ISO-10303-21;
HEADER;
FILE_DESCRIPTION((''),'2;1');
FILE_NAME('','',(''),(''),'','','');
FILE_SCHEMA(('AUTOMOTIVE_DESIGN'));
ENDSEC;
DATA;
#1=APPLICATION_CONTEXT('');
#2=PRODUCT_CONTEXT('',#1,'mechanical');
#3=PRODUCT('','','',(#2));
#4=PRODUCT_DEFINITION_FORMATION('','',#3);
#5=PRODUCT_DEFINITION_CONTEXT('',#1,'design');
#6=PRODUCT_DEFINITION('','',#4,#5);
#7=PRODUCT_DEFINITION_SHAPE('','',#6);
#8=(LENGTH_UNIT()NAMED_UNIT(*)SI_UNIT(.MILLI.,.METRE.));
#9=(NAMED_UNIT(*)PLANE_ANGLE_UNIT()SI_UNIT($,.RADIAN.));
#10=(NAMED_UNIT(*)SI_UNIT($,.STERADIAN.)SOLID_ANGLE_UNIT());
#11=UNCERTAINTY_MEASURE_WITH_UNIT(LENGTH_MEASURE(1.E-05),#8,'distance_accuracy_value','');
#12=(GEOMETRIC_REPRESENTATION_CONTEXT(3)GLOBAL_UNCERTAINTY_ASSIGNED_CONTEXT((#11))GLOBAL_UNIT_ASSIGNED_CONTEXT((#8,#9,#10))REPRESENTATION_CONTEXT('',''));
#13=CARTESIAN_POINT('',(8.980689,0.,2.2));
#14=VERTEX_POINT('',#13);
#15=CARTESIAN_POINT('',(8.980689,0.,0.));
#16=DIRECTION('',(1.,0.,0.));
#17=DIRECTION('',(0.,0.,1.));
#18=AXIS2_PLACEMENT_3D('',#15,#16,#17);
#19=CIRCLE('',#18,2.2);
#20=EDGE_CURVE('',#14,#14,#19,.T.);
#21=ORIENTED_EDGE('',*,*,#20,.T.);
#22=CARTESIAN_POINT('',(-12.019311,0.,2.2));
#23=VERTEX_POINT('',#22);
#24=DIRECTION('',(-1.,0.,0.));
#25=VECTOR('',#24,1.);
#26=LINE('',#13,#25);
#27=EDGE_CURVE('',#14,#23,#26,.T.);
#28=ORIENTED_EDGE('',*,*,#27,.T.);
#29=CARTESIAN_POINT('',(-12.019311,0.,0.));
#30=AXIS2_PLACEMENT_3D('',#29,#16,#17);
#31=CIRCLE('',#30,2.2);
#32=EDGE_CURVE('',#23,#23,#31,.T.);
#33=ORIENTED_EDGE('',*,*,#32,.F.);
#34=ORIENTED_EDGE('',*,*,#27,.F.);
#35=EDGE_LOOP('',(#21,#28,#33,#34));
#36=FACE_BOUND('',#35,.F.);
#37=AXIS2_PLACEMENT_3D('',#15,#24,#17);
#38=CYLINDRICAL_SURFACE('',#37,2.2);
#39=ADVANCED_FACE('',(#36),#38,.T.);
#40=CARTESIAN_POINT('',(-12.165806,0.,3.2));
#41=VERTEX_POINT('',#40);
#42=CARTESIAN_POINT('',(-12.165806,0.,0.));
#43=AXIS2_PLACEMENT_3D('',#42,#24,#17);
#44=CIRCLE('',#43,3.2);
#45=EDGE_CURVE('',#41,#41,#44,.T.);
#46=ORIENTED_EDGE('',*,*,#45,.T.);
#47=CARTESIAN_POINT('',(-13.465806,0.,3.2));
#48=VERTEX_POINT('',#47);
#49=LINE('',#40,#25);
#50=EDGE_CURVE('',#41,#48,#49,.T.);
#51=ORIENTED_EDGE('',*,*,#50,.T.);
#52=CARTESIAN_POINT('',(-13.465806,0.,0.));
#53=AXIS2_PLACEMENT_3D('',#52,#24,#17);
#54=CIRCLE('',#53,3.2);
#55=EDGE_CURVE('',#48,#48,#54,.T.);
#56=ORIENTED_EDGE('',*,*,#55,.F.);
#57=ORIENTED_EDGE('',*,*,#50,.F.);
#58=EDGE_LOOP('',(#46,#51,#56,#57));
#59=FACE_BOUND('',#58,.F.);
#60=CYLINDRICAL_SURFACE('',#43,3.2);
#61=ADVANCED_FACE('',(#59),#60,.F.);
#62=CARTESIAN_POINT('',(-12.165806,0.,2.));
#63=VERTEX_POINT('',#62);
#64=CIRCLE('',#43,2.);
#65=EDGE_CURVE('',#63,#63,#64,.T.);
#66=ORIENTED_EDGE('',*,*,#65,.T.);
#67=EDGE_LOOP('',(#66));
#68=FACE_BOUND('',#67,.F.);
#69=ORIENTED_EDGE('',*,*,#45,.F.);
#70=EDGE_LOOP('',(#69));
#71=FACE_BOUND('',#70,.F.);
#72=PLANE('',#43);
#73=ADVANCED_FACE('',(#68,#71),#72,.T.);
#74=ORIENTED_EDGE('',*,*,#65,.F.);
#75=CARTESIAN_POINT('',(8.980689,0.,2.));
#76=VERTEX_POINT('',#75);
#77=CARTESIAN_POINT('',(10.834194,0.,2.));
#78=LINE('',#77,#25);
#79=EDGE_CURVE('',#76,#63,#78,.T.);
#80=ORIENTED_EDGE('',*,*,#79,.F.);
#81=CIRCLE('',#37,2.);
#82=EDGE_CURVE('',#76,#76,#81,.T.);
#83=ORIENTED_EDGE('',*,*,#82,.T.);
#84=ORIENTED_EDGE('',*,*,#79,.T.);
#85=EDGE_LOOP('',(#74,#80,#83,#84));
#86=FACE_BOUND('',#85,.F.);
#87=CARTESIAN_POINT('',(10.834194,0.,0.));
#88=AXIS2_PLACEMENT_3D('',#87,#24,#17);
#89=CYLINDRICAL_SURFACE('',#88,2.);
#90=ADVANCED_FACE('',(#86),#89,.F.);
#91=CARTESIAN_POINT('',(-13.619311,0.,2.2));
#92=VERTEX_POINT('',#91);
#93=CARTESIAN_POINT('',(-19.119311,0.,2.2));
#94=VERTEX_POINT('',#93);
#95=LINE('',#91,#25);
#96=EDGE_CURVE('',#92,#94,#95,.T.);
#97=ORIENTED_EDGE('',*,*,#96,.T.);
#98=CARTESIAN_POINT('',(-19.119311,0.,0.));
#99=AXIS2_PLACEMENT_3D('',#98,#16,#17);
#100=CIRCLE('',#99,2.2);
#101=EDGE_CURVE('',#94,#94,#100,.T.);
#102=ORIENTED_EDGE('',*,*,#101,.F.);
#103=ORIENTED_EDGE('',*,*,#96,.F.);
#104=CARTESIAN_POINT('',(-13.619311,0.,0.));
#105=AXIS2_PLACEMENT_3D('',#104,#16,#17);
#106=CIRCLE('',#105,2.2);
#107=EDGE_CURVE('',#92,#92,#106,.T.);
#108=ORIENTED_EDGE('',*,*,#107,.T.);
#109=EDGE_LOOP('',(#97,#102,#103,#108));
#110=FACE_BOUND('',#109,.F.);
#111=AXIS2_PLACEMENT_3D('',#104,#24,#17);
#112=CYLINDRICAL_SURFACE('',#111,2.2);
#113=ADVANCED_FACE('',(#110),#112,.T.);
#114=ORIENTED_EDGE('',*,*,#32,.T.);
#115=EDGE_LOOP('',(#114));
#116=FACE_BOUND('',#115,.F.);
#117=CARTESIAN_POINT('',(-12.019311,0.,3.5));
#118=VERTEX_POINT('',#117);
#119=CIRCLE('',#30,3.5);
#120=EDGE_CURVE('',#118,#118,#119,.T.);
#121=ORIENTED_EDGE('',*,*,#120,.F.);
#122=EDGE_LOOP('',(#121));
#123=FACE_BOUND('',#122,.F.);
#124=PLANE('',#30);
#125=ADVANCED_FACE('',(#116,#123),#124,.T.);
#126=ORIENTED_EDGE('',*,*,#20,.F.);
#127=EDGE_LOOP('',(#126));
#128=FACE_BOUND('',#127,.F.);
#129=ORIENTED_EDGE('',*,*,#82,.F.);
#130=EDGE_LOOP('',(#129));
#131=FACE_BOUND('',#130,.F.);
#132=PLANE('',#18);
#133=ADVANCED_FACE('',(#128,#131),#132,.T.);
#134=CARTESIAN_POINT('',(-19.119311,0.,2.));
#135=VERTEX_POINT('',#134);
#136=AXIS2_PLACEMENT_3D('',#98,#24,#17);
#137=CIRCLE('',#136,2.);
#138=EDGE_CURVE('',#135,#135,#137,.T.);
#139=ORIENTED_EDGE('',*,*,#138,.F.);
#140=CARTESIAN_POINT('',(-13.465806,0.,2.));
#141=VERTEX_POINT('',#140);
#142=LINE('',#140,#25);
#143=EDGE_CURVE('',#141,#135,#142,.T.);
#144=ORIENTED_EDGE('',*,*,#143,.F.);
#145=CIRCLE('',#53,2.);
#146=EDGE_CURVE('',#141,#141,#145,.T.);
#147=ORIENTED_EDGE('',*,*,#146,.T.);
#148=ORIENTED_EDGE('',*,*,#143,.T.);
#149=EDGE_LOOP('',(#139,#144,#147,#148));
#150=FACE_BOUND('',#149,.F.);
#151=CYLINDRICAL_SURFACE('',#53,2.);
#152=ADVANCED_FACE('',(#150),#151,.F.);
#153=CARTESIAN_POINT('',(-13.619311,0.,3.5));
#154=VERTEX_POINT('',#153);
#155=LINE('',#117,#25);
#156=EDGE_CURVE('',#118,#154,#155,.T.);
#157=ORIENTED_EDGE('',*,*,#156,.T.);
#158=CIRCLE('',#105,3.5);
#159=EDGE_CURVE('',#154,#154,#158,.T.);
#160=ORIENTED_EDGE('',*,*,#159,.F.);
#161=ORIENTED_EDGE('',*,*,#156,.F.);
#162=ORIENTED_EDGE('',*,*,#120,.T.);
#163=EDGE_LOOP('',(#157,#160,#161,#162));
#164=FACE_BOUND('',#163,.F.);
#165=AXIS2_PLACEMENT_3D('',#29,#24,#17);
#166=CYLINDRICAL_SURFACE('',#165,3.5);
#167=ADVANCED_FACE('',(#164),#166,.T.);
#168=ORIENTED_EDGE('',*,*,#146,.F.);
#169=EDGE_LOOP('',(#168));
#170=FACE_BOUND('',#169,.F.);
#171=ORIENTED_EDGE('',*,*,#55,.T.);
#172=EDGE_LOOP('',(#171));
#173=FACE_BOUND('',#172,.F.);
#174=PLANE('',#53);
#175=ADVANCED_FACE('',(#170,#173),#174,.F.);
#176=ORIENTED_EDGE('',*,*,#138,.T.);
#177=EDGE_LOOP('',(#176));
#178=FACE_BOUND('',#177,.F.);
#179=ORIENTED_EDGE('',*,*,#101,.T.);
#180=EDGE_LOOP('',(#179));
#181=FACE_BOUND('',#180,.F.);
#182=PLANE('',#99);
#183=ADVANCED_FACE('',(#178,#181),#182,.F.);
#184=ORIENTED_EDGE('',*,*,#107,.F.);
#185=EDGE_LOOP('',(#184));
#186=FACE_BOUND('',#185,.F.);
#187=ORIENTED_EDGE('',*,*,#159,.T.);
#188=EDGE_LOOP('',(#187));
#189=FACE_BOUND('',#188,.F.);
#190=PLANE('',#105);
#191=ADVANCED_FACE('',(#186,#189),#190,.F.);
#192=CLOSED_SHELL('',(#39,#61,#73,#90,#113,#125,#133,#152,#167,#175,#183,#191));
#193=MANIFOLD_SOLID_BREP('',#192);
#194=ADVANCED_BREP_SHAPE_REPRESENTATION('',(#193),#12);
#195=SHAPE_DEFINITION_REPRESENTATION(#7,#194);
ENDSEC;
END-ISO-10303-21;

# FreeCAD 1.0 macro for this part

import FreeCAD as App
import Part
import Sketcher
Q = App.Units.Quantity

doc = App.newDocument("Part")
body = doc.addObject("PartDesign::Body", "Body")

sketch1 = doc.addObject("Sketcher::SketchObject", "Sketch")
body.addObject(sketch1)
sketch1.AttachmentSupport = (doc.XZ_Plane, [""])
sketch1.MapMode = "FlatFace"
sketch1.addGeometry([
    Part.LineSegment(App.Vector(-13.6, 2.2, 0), App.Vector(-19.1, 2.2, 0)),
    Part.LineSegment(App.Vector(-19.1, 2.2, 0), App.Vector(-19.1, 0, 0)),
    Part.LineSegment(App.Vector(-19.1, 0, 0), App.Vector(9, 0, 0)),
    Part.LineSegment(App.Vector(9, 0, 0), App.Vector(9, 2.2, 0)),
    Part.LineSegment(App.Vector(9, 2.2, 0), App.Vector(-12, 2.2, 0)),
    Part.LineSegment(App.Vector(-12, 2.2, 0), App.Vector(-12, 3.5, 0)),
    Part.LineSegment(App.Vector(-12, 3.5, 0), App.Vector(-13.6, 3.5, 0)),
    Part.LineSegment(App.Vector(-13.6, 3.5, 0), App.Vector(-13.6, 2.2, 0)),
], False)
sketch1.addConstraint([
    Sketcher.Constraint("Coincident", 0, 2, 1, 1),
    Sketcher.Constraint("Coincident", 1, 2, 2, 1),
    Sketcher.Constraint("Coincident", 2, 2, 3, 1),
    Sketcher.Constraint("Coincident", 3, 2, 4, 1),
    Sketcher.Constraint("Coincident", 4, 2, 5, 1),
    Sketcher.Constraint("Coincident", 5, 2, 6, 1),
    Sketcher.Constraint("Coincident", 6, 2, 7, 1),
    Sketcher.Constraint("Coincident", 7, 2, 0, 1),
    Sketcher.Constraint("Horizontal", 0),
    Sketcher.Constraint("Vertical", 1),
    Sketcher.Constraint("Horizontal", 2),
    Sketcher.Constraint("Vertical", 3),
    Sketcher.Constraint("Horizontal", 4),
    Sketcher.Constraint("Vertical", 5),
    Sketcher.Constraint("Horizontal", 6),
    Sketcher.Constraint("Vertical", 7),
    Sketcher.Constraint("PointOnObject", 1, 2, -1),
    Sketcher.Constraint("Horizontal", 0, 2, 3, 2),
    Sketcher.Constraint("DistanceX", 4, 2, 4, 1, Q("21 mm")),
    Sketcher.Constraint("DistanceX", 0, 2, 0, 1, Q("5.5 mm")),
    Sketcher.Constraint("DistanceX", 2, 1, 2, 2, Q("28.1 mm")),
    Sketcher.Constraint("DistanceY", 1, 2, 1, 1, Q("2.2 mm")),
    Sketcher.Constraint("DistanceY", 5, 1, 5, 2, Q("1.3 mm")),
    Sketcher.Constraint("DistanceX", 0, 2, -1, 1, Q("19.119311 mm")),
])
revolution = doc.addObject("PartDesign::Revolution", "Revolution")
body.addObject(revolution)
revolution.Profile = sketch1
revolution.ReferenceAxis = (sketch1, ["H_Axis"])
revolution.Angle = 360

sketch2 = doc.addObject("Sketcher::SketchObject", "Sketch001")
body.addObject(sketch2)
sketch2.AttachmentSupport = (doc.XZ_Plane, [""])
sketch2.MapMode = "FlatFace"
sketch2.addGeometry([
    Part.LineSegment(App.Vector(-13.5, 2, 0), App.Vector(-19.5, 2, 0)),
    Part.LineSegment(App.Vector(-19.5, 2, 0), App.Vector(-19.5, 0, 0)),
    Part.LineSegment(App.Vector(-19.5, 0, 0), App.Vector(10.8, 0, 0)),
    Part.LineSegment(App.Vector(10.8, 0, 0), App.Vector(10.8, 2, 0)),
    Part.LineSegment(App.Vector(10.8, 2, 0), App.Vector(-12.2, 2, 0)),
    Part.LineSegment(App.Vector(-12.2, 2, 0), App.Vector(-12.2, 3.2, 0)),
    Part.LineSegment(App.Vector(-12.2, 3.2, 0), App.Vector(-13.5, 3.2, 0)),
    Part.LineSegment(App.Vector(-13.5, 3.2, 0), App.Vector(-13.5, 2, 0)),
], False)
sketch2.addConstraint([
    Sketcher.Constraint("Coincident", 0, 2, 1, 1),
    Sketcher.Constraint("Coincident", 1, 2, 2, 1),
    Sketcher.Constraint("Coincident", 2, 2, 3, 1),
    Sketcher.Constraint("Coincident", 3, 2, 4, 1),
    Sketcher.Constraint("Coincident", 4, 2, 5, 1),
    Sketcher.Constraint("Coincident", 5, 2, 6, 1),
    Sketcher.Constraint("Coincident", 6, 2, 7, 1),
    Sketcher.Constraint("Coincident", 7, 2, 0, 1),
    Sketcher.Constraint("Horizontal", 0),
    Sketcher.Constraint("Vertical", 1),
    Sketcher.Constraint("Horizontal", 2),
    Sketcher.Constraint("Vertical", 3),
    Sketcher.Constraint("Horizontal", 4),
    Sketcher.Constraint("Vertical", 5),
    Sketcher.Constraint("Horizontal", 6),
    Sketcher.Constraint("Vertical", 7),
    Sketcher.Constraint("PointOnObject", 1, 2, -1),
    Sketcher.Constraint("Horizontal", 0, 2, 3, 2),
    Sketcher.Constraint("DistanceX", 0, 2, 0, 1, Q("6 mm")),
    Sketcher.Constraint("DistanceX", 4, 2, 4, 1, Q("23 mm")),
    Sketcher.Constraint("DistanceY", 1, 2, 1, 1, Q("2 mm")),
    Sketcher.Constraint("DistanceX", 2, 1, 2, 2, Q("30.3 mm")),
    Sketcher.Constraint("DistanceY", 5, 1, 5, 2, Q("1.2 mm")),
    Sketcher.Constraint("DistanceX", 0, 2, -1, 1, Q("19.465806 mm")),
])
groove = doc.addObject("PartDesign::Groove", "Groove")
body.addObject(groove)
groove.Profile = sketch2
groove.ReferenceAxis = (sketch2, ["H_Axis"])
groove.Angle = 360

doc.recompute()
